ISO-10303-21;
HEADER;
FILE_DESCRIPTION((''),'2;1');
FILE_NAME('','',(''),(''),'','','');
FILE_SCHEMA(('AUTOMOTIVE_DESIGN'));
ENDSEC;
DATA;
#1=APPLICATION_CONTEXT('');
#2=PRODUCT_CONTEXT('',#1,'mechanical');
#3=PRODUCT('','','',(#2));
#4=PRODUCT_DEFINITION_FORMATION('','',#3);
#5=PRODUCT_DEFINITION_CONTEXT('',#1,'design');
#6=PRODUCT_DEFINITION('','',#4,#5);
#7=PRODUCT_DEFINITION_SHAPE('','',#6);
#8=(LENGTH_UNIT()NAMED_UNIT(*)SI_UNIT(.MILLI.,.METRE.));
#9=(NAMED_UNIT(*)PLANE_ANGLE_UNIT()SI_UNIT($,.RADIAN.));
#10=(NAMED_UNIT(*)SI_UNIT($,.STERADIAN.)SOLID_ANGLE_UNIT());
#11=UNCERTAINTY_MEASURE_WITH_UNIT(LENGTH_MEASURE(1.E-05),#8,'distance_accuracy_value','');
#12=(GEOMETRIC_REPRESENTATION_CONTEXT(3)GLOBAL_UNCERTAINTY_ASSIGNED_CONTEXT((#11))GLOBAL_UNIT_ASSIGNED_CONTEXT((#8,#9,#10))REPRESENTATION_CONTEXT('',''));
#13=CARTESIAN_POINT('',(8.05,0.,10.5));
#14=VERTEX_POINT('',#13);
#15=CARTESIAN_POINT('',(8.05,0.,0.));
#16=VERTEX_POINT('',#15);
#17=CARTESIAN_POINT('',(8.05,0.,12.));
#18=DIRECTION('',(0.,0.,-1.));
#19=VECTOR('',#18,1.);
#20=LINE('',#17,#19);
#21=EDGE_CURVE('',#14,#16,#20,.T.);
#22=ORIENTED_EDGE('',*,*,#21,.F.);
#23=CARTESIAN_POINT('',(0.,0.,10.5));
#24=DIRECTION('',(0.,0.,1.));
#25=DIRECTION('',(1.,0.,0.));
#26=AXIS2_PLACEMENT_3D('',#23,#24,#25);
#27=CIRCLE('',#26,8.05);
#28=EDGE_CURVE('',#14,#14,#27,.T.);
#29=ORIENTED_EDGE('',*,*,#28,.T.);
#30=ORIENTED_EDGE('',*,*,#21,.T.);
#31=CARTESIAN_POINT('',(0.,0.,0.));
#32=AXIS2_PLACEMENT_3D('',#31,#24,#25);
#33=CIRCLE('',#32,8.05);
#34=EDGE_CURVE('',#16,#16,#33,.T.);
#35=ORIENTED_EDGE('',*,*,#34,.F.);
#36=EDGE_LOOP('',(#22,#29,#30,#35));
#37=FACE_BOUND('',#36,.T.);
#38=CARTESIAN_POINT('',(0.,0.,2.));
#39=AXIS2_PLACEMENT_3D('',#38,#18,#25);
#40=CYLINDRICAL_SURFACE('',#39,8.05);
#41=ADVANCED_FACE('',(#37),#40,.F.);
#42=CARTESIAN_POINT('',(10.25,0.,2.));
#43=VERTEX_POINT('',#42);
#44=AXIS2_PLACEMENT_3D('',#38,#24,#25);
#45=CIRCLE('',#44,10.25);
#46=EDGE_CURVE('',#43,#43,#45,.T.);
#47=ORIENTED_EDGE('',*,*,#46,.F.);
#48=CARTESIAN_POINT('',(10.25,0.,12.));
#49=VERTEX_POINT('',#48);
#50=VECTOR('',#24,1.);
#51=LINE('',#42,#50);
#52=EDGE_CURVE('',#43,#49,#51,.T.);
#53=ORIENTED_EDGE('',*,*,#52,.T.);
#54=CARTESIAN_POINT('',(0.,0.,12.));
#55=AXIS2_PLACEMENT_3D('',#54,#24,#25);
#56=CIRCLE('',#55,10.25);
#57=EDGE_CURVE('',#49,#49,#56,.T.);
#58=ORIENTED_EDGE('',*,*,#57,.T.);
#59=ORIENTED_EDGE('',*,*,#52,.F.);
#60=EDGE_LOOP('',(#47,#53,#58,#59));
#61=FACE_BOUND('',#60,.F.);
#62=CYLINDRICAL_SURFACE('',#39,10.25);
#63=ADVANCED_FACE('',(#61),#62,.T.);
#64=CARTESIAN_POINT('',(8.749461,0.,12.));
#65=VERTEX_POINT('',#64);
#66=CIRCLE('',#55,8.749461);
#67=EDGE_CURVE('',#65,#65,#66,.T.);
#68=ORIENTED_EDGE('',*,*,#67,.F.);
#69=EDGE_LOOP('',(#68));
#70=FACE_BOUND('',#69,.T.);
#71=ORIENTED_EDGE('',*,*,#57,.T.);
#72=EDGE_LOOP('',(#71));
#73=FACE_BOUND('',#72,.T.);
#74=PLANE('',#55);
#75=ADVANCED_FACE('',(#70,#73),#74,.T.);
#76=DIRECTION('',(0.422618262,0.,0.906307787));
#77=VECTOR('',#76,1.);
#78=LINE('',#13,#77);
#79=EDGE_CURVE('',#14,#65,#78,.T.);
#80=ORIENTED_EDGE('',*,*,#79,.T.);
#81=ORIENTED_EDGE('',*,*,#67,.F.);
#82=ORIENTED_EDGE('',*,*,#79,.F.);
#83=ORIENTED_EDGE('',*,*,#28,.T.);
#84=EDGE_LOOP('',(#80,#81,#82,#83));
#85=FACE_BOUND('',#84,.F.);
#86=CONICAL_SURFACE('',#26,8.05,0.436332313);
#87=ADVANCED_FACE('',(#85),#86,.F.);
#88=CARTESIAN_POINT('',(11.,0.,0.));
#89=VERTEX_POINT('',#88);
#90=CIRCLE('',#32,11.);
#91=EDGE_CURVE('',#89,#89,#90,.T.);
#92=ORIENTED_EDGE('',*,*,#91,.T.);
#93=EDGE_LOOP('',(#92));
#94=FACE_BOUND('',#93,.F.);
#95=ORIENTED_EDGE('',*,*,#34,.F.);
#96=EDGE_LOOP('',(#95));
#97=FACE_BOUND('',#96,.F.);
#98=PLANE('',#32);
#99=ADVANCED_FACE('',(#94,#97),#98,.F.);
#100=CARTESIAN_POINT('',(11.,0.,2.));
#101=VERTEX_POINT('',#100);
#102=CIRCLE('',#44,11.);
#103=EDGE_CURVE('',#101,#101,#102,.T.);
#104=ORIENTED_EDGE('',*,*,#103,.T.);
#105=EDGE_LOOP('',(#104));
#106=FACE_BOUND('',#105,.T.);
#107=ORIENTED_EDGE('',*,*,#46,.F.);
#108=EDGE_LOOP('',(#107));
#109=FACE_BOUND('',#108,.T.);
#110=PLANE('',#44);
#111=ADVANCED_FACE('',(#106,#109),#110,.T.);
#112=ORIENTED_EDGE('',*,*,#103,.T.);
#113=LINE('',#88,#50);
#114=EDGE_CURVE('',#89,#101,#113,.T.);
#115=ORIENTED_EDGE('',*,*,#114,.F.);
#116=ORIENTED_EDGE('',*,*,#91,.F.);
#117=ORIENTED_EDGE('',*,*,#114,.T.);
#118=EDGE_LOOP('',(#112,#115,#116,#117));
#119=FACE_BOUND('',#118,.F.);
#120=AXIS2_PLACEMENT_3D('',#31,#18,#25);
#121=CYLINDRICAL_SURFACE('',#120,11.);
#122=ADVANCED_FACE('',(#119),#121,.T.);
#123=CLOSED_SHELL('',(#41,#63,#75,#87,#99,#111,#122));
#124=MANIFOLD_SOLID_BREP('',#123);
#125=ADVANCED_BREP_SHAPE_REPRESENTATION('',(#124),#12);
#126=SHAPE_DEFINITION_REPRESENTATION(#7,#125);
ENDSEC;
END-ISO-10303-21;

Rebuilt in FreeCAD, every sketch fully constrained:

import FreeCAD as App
import Part
import Sketcher


def edges_at(feature, points):
    """Names of the edges that pass closest to the given points."""
    edges = feature.Shape.Edges
    near = lambda p: min(range(len(edges)), key=lambda i: edges[i].distToShape(Part.Vertex(*p))[0])
    return sorted({f"Edge{near(p) + 1}" for p in points})

doc = App.newDocument("Part")
body = doc.addObject("PartDesign::Body", "Body")

sketch1 = body.newObject("Sketcher::SketchObject", "Sketch")
sketch1.AttachmentSupport = (doc.getObject("XY_Plane"), [""])
sketch1.MapMode = "FlatFace"
sketch1.addGeometry([
    Part.Circle(App.Vector(0, 0, 0), App.Vector(0, 0, 1), 11),
    Part.Circle(App.Vector(0, 0, 0), App.Vector(0, 0, 1), 8),
], False)
sketch1.addConstraint([
    Sketcher.Constraint("Coincident", 0, 3, -1, 1),
    Sketcher.Constraint("Coincident", 1, 3, -1, 1),
    Sketcher.Constraint("Diameter", 0, 22.0),
    Sketcher.Constraint("Diameter", 1, 16.1),
])
pad1 = body.newObject("PartDesign::Pad", "Pad")
pad1.Profile = sketch1
pad1.Length = 2

sketch2 = body.newObject("Sketcher::SketchObject", "Sketch001")
sketch2.AttachmentSupport = (doc.getObject("XY_Plane"), [""])
sketch2.MapMode = "FlatFace"
sketch2.AttachmentOffset = App.Placement(App.Vector(0, 0, 2), App.Rotation())
sketch2.addGeometry([
    Part.Circle(App.Vector(0, 0, 0), App.Vector(0, 0, 1), 10),
    Part.Circle(App.Vector(0, 0, 0), App.Vector(0, 0, 1), 8),
], False)
sketch2.addConstraint([
    Sketcher.Constraint("Coincident", 0, 3, -1, 1),
    Sketcher.Constraint("Coincident", 1, 3, -1, 1),
    Sketcher.Constraint("Diameter", 0, 20.5),
    Sketcher.Constraint("Diameter", 1, 16.1),
])
pad2 = body.newObject("PartDesign::Pad", "Pad001")
pad2.Profile = sketch2
pad2.Length = 10
doc.recompute()

chamfer = body.newObject("PartDesign::Chamfer", "Chamfer")
chamfer.Base = (pad2, edges_at(pad2, [(-8.05, 0, 12)]))
chamfer.ChamferType = "Two distances"
chamfer.Size = 1.5
chamfer.Size2 = 0.699461
chamfer.FlipDirection = True

doc.recompute()
